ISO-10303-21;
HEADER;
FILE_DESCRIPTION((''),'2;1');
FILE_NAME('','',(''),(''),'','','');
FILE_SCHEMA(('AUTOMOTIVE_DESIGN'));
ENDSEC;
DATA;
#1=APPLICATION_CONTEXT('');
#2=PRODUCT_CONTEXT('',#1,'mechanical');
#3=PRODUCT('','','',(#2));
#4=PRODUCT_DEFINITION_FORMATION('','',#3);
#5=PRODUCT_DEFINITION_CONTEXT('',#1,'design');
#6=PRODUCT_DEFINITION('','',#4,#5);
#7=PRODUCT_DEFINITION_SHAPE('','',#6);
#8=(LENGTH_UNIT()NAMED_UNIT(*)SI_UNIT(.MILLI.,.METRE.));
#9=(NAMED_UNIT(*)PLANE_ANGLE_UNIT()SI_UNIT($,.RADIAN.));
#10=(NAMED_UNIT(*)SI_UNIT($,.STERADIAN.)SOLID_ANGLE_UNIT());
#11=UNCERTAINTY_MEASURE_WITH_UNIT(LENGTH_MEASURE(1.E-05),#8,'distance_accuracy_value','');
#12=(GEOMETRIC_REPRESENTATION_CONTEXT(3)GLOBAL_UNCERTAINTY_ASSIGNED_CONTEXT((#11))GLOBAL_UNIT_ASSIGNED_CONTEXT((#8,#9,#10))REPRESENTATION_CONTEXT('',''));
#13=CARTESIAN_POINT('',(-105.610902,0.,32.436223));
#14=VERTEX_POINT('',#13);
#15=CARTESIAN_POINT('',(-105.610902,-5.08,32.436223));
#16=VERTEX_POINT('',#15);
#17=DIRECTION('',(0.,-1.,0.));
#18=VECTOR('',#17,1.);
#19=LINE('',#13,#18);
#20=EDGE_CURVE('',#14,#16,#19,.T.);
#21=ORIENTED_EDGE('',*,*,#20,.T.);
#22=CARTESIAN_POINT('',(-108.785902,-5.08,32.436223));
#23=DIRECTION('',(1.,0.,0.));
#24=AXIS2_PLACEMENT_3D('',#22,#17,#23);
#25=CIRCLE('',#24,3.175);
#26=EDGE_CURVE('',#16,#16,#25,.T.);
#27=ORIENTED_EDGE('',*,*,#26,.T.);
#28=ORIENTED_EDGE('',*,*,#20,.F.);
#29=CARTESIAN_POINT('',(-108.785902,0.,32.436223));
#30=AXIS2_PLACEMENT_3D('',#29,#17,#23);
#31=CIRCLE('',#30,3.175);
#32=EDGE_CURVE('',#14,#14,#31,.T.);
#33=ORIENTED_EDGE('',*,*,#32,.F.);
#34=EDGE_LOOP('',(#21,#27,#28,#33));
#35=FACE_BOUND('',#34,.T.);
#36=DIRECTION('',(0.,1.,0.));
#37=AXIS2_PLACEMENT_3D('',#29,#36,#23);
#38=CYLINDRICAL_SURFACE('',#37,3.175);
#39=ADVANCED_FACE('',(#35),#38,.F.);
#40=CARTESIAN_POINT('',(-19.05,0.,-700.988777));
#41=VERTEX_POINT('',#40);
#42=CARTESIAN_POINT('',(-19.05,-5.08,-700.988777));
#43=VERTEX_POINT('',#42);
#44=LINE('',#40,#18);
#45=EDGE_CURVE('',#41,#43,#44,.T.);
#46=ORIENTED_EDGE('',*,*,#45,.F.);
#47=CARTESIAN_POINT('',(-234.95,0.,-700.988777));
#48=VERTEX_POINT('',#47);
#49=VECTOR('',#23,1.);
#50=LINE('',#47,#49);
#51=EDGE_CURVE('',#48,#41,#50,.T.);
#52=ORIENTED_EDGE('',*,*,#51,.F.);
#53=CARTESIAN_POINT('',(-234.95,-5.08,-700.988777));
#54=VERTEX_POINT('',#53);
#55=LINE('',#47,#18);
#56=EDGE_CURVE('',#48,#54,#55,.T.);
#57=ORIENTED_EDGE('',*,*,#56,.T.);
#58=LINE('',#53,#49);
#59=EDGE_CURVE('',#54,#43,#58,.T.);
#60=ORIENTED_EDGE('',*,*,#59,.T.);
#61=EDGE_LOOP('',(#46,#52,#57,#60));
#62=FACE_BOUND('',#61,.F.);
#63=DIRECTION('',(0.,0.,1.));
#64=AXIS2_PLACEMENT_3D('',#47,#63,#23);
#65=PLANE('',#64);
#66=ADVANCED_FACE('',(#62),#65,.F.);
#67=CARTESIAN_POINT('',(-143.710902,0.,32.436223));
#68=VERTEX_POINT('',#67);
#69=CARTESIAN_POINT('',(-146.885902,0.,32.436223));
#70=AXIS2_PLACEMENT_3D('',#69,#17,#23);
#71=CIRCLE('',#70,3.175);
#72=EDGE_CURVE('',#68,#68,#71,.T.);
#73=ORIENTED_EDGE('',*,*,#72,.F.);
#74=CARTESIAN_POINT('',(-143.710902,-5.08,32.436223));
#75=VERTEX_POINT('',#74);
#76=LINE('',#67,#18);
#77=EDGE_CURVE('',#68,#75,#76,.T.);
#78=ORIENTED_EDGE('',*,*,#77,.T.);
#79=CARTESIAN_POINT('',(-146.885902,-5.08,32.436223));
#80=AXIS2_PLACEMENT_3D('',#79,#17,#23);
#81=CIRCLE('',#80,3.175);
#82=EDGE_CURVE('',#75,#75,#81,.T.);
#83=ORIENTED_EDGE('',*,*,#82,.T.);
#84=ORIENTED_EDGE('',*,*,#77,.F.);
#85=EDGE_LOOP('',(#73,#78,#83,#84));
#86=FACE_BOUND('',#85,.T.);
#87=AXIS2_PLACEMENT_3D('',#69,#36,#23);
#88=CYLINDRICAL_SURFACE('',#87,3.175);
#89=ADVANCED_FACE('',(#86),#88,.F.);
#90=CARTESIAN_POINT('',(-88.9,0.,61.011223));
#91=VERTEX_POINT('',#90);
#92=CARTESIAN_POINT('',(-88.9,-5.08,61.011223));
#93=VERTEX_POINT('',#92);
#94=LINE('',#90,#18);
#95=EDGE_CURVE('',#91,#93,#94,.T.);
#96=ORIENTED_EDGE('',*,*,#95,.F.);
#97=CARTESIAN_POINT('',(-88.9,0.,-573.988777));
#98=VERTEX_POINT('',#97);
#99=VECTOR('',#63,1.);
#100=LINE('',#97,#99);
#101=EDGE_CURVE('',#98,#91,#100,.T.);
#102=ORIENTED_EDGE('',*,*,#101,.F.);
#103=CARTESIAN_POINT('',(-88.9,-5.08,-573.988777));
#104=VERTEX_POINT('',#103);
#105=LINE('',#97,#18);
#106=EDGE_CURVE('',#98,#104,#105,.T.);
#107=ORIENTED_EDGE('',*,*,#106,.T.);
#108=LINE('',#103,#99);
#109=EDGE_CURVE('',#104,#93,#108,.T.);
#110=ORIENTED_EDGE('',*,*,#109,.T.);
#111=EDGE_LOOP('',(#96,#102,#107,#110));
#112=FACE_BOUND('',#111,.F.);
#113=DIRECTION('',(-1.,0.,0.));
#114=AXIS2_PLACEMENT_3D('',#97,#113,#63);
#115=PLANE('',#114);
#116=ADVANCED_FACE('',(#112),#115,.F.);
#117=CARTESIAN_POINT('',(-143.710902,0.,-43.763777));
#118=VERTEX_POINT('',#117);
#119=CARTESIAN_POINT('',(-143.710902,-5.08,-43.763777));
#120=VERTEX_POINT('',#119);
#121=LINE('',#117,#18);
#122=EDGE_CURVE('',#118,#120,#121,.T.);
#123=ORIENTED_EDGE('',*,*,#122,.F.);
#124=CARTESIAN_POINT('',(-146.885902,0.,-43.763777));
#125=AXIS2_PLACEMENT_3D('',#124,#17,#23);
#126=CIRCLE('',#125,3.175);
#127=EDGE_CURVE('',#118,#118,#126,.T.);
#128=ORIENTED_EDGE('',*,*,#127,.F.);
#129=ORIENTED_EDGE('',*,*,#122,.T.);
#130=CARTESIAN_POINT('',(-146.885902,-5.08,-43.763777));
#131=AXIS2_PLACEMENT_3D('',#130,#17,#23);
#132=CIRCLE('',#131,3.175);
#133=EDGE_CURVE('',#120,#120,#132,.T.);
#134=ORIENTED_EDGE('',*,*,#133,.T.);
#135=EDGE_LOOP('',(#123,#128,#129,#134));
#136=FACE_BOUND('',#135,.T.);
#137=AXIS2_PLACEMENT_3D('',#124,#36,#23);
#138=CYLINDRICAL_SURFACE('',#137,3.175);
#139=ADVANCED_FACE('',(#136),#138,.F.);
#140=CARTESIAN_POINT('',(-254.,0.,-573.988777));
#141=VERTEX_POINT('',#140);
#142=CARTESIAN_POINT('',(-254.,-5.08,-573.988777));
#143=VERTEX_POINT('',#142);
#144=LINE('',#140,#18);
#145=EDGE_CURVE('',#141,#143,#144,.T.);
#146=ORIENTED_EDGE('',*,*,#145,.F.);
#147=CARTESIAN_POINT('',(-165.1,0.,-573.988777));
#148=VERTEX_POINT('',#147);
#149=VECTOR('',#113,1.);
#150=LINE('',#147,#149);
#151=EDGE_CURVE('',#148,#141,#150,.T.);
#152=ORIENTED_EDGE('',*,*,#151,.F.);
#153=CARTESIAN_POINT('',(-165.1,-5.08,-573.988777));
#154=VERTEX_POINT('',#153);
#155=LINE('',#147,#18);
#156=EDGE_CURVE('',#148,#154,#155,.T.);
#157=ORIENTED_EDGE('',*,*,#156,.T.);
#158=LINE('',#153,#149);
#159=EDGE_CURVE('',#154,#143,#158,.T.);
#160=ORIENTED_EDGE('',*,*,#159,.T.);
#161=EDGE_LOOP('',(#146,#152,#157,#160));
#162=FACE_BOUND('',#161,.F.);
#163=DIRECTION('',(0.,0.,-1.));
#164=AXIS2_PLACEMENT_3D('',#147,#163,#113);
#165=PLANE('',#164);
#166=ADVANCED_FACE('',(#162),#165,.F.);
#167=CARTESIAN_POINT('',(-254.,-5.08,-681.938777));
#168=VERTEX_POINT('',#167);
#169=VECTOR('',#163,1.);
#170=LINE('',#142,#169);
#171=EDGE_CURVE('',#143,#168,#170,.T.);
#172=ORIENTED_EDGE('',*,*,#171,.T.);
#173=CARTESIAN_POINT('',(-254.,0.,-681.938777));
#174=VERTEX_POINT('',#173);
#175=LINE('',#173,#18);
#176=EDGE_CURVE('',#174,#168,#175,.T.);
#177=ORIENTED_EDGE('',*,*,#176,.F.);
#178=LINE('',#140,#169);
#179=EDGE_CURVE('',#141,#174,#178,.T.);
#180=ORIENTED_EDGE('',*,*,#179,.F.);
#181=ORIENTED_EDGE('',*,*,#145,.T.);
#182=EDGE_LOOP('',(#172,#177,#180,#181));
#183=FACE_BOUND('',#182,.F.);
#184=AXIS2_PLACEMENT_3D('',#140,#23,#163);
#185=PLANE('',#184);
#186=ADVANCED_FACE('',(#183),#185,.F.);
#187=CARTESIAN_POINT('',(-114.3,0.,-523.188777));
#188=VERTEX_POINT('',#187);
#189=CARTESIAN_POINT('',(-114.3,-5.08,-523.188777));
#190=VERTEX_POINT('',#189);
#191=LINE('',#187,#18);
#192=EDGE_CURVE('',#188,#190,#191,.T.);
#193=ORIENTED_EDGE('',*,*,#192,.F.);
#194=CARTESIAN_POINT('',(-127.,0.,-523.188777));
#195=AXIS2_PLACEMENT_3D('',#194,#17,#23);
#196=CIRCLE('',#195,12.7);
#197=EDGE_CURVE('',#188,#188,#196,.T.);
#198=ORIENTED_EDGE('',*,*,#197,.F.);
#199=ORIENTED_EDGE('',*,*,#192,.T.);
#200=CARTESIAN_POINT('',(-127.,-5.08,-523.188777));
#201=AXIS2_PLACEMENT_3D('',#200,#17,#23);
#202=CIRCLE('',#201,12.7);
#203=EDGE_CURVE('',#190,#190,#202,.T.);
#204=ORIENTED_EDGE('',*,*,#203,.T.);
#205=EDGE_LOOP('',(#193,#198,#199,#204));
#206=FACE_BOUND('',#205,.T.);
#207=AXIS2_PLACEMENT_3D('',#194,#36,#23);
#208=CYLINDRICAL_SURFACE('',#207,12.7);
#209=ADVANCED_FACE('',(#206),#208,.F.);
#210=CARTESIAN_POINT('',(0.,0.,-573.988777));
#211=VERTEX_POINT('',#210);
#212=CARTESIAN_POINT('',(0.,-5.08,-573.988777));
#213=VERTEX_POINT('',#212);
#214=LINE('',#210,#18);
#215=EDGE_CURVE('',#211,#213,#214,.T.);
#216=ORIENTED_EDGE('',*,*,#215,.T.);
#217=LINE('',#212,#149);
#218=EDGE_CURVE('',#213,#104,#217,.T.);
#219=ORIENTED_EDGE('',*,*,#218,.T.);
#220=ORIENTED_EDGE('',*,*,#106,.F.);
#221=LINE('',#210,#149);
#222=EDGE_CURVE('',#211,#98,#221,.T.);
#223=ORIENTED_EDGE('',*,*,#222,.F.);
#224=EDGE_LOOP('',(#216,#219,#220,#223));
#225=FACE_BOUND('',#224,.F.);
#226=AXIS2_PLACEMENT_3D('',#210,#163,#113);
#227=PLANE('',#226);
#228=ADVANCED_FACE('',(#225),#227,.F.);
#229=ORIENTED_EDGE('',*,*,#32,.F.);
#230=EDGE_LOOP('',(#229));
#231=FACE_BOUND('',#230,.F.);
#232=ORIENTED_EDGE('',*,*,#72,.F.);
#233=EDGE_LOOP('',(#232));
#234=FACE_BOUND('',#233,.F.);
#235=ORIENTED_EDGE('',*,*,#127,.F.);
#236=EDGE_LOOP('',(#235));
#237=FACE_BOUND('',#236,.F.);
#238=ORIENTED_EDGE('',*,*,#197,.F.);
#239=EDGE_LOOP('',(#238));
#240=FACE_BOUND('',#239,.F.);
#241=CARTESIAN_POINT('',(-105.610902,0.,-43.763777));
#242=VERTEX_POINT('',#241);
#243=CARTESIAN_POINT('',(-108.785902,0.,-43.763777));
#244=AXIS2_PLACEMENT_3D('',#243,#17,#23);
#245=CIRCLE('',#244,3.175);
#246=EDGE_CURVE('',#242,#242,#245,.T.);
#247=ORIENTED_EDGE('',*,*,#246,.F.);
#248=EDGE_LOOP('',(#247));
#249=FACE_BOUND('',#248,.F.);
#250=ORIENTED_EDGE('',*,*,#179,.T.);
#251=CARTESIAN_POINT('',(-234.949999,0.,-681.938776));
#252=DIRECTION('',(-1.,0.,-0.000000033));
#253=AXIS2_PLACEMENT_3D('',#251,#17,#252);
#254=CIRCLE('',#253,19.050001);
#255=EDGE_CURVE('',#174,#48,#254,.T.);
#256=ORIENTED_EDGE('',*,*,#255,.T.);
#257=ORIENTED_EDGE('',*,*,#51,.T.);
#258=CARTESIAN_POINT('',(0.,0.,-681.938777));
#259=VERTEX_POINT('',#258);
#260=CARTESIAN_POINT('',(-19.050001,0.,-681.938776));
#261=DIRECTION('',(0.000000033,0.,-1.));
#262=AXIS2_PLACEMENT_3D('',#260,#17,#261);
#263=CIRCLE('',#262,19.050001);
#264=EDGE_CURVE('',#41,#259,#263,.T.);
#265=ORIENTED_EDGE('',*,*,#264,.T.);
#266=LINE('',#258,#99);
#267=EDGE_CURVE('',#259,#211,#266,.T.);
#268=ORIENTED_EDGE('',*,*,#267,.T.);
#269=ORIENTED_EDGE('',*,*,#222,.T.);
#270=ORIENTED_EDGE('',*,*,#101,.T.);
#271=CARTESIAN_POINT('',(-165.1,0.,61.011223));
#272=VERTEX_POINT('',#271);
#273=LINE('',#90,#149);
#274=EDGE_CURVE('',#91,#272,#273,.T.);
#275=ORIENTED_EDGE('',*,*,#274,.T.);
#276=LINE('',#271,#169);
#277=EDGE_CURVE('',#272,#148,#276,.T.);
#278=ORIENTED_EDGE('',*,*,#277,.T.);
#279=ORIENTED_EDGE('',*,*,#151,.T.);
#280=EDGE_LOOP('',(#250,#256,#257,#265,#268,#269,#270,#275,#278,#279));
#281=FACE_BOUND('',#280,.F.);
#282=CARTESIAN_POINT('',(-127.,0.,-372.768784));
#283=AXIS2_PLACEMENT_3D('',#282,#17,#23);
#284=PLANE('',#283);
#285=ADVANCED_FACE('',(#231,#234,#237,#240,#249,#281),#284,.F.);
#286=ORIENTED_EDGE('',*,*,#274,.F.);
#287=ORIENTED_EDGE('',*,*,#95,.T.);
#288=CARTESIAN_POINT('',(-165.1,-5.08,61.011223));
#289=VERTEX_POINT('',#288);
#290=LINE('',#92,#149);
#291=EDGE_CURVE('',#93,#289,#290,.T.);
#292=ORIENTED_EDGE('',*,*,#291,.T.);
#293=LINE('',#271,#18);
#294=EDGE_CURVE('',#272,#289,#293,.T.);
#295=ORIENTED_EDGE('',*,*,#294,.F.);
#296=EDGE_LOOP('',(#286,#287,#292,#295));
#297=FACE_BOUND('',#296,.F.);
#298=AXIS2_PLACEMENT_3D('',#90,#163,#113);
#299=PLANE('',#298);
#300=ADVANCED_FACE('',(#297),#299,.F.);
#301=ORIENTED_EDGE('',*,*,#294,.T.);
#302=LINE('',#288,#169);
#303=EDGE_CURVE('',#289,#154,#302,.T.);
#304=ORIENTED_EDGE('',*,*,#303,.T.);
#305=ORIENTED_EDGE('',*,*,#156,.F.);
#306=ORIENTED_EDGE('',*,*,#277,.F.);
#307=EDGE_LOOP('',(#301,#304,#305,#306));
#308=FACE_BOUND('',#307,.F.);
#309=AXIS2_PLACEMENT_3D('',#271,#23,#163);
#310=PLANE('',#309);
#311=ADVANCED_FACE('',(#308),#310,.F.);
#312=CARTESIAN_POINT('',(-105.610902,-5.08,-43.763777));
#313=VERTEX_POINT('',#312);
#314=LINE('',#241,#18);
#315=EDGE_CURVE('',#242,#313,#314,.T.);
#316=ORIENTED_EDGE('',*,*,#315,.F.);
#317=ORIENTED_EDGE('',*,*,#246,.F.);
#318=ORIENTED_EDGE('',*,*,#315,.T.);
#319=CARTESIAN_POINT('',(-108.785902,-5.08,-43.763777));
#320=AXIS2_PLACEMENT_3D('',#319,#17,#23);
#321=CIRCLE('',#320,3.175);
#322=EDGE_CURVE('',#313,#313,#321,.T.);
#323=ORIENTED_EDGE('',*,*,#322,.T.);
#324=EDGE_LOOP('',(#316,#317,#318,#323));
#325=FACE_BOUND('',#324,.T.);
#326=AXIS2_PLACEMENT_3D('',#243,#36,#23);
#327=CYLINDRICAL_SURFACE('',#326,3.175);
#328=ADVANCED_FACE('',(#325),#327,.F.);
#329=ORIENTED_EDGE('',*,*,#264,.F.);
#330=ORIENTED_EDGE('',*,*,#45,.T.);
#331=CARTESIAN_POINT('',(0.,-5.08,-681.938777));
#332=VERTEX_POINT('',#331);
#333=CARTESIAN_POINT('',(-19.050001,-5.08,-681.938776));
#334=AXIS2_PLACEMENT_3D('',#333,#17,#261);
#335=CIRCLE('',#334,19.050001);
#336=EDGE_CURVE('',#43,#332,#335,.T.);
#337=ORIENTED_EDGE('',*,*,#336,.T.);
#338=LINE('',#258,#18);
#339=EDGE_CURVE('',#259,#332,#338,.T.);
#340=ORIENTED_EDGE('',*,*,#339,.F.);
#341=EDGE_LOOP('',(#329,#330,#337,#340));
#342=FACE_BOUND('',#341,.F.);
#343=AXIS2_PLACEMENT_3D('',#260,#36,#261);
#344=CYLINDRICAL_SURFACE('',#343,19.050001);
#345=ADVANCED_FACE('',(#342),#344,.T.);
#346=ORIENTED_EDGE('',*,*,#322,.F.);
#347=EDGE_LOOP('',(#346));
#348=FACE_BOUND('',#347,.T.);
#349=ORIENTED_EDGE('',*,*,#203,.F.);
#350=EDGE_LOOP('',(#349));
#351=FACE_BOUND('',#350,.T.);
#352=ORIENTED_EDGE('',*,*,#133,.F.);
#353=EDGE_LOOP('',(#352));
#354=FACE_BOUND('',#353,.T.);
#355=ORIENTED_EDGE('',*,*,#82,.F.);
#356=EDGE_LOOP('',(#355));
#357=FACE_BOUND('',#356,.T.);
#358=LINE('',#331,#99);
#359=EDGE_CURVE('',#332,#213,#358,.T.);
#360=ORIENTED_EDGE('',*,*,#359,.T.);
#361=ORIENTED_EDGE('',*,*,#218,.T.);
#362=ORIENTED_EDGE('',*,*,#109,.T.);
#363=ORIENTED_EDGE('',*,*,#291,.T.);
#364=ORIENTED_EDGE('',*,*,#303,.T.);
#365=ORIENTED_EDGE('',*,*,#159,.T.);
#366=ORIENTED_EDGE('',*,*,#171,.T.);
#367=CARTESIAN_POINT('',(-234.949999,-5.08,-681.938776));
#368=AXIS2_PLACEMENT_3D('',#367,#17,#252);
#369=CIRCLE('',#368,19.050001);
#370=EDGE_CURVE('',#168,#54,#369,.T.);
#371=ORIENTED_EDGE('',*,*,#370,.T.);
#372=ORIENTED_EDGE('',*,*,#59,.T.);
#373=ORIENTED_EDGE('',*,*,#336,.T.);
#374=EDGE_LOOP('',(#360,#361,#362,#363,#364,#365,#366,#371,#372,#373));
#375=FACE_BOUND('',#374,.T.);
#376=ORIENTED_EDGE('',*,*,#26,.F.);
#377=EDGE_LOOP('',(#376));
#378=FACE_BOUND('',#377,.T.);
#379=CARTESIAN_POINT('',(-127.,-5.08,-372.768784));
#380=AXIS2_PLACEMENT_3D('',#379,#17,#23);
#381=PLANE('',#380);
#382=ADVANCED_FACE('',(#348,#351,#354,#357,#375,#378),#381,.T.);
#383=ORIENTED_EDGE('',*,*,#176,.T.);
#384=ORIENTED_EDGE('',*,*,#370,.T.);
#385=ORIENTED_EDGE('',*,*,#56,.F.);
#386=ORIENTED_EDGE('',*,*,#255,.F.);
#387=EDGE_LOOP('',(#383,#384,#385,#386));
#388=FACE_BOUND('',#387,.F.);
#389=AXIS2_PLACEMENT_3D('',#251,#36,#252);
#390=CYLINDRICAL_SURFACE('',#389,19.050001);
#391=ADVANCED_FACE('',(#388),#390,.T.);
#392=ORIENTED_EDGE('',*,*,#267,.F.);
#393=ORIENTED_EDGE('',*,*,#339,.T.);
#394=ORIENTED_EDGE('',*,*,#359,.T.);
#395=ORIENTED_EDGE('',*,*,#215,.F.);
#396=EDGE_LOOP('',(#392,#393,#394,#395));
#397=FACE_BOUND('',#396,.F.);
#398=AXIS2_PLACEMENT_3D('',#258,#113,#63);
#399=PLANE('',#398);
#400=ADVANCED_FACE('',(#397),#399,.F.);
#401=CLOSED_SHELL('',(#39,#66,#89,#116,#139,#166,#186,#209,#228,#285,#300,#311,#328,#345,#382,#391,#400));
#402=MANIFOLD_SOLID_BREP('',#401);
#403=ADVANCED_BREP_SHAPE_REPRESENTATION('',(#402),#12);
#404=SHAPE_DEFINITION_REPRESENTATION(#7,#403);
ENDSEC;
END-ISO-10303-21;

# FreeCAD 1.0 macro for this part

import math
import FreeCAD as App
import Part
import Sketcher

V = App.Vector
Q = App.Units.Quantity

doc = App.newDocument("Part")
body = doc.addObject("PartDesign::Body", "Body")

sketch1 = body.newObject("Sketcher::SketchObject", "Sketch")
sketch1.AttachmentSupport = (doc.getObject("XZ_Plane"), [""])
sketch1.MapMode = "FlatFace"
sketch1.addGeometry([
    Part.LineSegment(V(-88.9, 61, 0), V(-165.1, 61, 0)),
    Part.LineSegment(V(-165.1, 61, 0), V(-165.1, -574, 0)),
    Part.LineSegment(V(-165.1, -574, 0), V(-254, -574, 0)),
    Part.LineSegment(V(-254, -574, 0), V(-254, -681.9, 0)),
    Part.ArcOfCircle(Part.Circle(V(-234.9, -681.9, 0), V(0, 0, 1), 19.1), math.radians(-180), math.radians(-90)),
    Part.LineSegment(V(-234.9, -701, 0), V(-19.1, -701, 0)),
    Part.ArcOfCircle(Part.Circle(V(-19.1, -681.9, 0), V(0, 0, 1), 19.1), math.radians(-90), math.radians(0)),
    Part.LineSegment(V(0, -681.9, 0), V(0, -574, 0)),
    Part.LineSegment(V(0, -574, 0), V(-88.9, -574, 0)),
    Part.LineSegment(V(-88.9, -574, 0), V(-88.9, 61, 0)),
    Part.Circle(V(-127, -523.2, 0), V(0, 0, 1), 12.7),
    Part.Circle(V(-146.9, -43.8, 0), V(0, 0, 1), 3.2),
    Part.Circle(V(-146.9, 32.4, 0), V(0, 0, 1), 3.2),
    Part.Circle(V(-108.8, -43.8, 0), V(0, 0, 1), 3.2),
    Part.Circle(V(-108.8, 32.4, 0), V(0, 0, 1), 3.2),
], False)
sketch1.addConstraint([
    Sketcher.Constraint("Coincident", 0, 2, 1, 1),
    Sketcher.Constraint("Coincident", 1, 2, 2, 1),
    Sketcher.Constraint("Coincident", 2, 2, 3, 1),
    Sketcher.Constraint("Tangent", 3, 2, 4, 1),
    Sketcher.Constraint("Tangent", 4, 2, 5, 1),
    Sketcher.Constraint("Tangent", 5, 2, 6, 1),
    Sketcher.Constraint("Tangent", 6, 2, 7, 1),
    Sketcher.Constraint("Coincident", 7, 2, 8, 1),
    Sketcher.Constraint("Coincident", 8, 2, 9, 1),
    Sketcher.Constraint("Coincident", 9, 2, 0, 1),
    Sketcher.Constraint("Horizontal", 0),
    Sketcher.Constraint("Vertical", 1),
    Sketcher.Constraint("Horizontal", 2),
    Sketcher.Constraint("Vertical", 3),
    Sketcher.Constraint("Horizontal", 5),
    Sketcher.Constraint("Vertical", 7),
    Sketcher.Constraint("Horizontal", 8),
    Sketcher.Constraint("Vertical", 9),
    Sketcher.Constraint("Equal", 4, 6),
    Sketcher.Constraint("Equal", 11, 12),
    Sketcher.Constraint("Equal", 12, 13),
    Sketcher.Constraint("Equal", 13, 14),
    Sketcher.Constraint("PointOnObject", 6, 2, -2),
    Sketcher.Constraint("Horizontal", 11, 3, 13, 3),
    Sketcher.Constraint("Horizontal", 12, 3, 14, 3),
    Sketcher.Constraint("Horizontal", 2, 2, 7, 2),
    Sketcher.Constraint("Vertical", 11, 3, 12, 3),
    Sketcher.Constraint("Vertical", 13, 3, 14, 3),
    Sketcher.Constraint("Equal", 2, 8),
    Sketcher.Constraint("Diameter", 10, Q("1 in")),
    Sketcher.Constraint("Diameter", 11, Q("0.25 in")),
    Sketcher.Constraint("DistanceX", 0, 2, 0, 1, Q("3 in")),
    Sketcher.Constraint("DistanceY", 1, 2, 1, 1, Q("25 in")),
    Sketcher.Constraint("Radius", 4, Q("0.75 in")),
    Sketcher.Constraint("DistanceX", 2, 2, 2, 1, Q("3.5 in")),
    Sketcher.Constraint("DistanceX", 10, 3, -1, 1, Q("5 in")),
    Sketcher.Constraint("DistanceY", 11, 3, 12, 3, Q("3 in")),
    Sketcher.Constraint("DistanceY", 10, 3, 0, 2, Q("23 in")),
    Sketcher.Constraint("DistanceY", 4, 2, 2, 2, Q("5 in")),
    Sketcher.Constraint("DistanceX", 11, 3, 13, 3, Q("1.5 in")),
    Sketcher.Constraint("DistanceY", 10, 3, 11, 3, Q("18.875 in")),
    Sketcher.Constraint("DistanceX", 11, 3, -1, 1, Q("146.885902 mm")),
    Sketcher.Constraint("DistanceY", 4, 3, -1, 1, Q("681.938776 mm")),
])
pad1 = body.newObject("PartDesign::Pad", "Pad")
pad1.Profile = sketch1
pad1.Length = Q("0.2 in")

doc.recompute()
